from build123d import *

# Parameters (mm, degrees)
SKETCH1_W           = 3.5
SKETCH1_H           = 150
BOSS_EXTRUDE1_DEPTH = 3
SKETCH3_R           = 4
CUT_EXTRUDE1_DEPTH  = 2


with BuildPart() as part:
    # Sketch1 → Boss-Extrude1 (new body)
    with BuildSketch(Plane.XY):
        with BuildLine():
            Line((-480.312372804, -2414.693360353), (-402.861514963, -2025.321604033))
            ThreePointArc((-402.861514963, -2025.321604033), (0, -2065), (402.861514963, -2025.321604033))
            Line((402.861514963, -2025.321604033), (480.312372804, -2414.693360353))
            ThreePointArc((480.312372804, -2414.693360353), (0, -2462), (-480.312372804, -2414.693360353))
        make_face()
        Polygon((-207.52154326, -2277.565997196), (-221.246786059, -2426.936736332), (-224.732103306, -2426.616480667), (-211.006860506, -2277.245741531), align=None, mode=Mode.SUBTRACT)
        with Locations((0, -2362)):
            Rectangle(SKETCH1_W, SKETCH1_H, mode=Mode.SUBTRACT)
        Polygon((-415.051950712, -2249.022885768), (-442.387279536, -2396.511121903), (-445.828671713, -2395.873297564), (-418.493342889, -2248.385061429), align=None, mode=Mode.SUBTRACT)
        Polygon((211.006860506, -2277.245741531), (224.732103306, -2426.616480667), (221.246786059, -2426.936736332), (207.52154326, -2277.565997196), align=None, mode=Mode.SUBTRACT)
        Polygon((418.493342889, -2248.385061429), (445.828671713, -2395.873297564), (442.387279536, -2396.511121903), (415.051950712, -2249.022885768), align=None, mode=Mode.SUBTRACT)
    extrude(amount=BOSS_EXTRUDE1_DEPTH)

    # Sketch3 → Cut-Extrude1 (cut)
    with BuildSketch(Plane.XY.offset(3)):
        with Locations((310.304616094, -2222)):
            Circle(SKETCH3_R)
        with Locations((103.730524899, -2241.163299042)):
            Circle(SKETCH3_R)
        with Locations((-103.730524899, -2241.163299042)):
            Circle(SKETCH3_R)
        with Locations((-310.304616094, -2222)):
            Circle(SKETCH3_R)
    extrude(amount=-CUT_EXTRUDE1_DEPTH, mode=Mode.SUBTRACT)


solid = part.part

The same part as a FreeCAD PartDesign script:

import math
import FreeCAD as App
import Part
import Sketcher

V = App.Vector
Q = App.Units.Quantity


def add_polygon(sketch, points):
    """Adds a closed chain of lines whose ends are joined by coincident constraints."""
    first, n = sketch.GeometryCount, len(points)
    for a, b in zip(points, points[1:] + points[:1]):
        sketch.addGeometry(Part.LineSegment(App.Vector(*a, 0), App.Vector(*b, 0)), False)
    for i in range(n):
        sketch.addConstraint(Sketcher.Constraint("Coincident", first + i, 2, first + (i + 1) % n, 1))

doc = App.newDocument("Part")
body = doc.addObject("PartDesign::Body", "Body")

# Sketch on XY plane
sketch1 = body.newObject("Sketcher::SketchObject", "Sketch")
sketch1.AttachmentSupport = (doc.getObject("XY_Plane"), [""])
sketch1.MapMode = "FlatFace"
sketch1.addGeometry(Part.LineSegment(V(-402.9, -2025.3, 0), V(-480.3, -2414.7, 0)), False)  # 0
sketch1.addGeometry(Part.ArcOfCircle(Part.Circle(V(0, 0, 0), V(0, 0, 1), 2462), math.radians(-101), math.radians(-79)), False)  # 1
sketch1.addGeometry(Part.LineSegment(V(480.3, -2414.7, 0), V(402.9, -2025.3, 0)), False)  # 2
sketch1.addGeometry(Part.ArcOfCircle(Part.Circle(V(0, 0, 0), V(0, 0, 1), 2065), math.radians(-101), math.radians(-79)), False)  # 3
add_polygon(sketch1, [(211, -2277.2), (224.7, -2426.6), (221.2, -2426.9), (207.5, -2277.6)])  # lines 4-7
add_polygon(sketch1, [(-1.8, -2437), (-1.8, -2287), (1.8, -2287), (1.8, -2437)])  # lines 8-11
add_polygon(sketch1, [(-207.5, -2277.6), (-221.2, -2426.9), (-224.7, -2426.6), (-211, -2277.2)])  # lines 12-15
add_polygon(sketch1, [(418.5, -2248.4), (445.8, -2395.9), (442.4, -2396.5), (415.1, -2249)])  # lines 16-19
add_polygon(sketch1, [(-415.1, -2249), (-442.4, -2396.5), (-445.8, -2395.9), (-418.5, -2248.4)])  # lines 20-23
sketch1.addConstraint([
    Sketcher.Constraint("Coincident", 0, 2, 1, 1),
    Sketcher.Constraint("Coincident", 1, 2, 2, 1),
    Sketcher.Constraint("Coincident", 2, 2, 3, 2),
    Sketcher.Constraint("Coincident", 3, 1, 0, 1),
    Sketcher.Constraint("Vertical", 8),
    Sketcher.Constraint("Horizontal", 9),
    Sketcher.Constraint("Vertical", 10),
    Sketcher.Constraint("Horizontal", 11),
    Sketcher.Constraint("Coincident", 1, 3, -1, 1),
    Sketcher.Constraint("Coincident", 3, 3, -1, 1),
    Sketcher.Constraint("Symmetric", 5, 2, 12, 2, -2),
    Sketcher.Constraint("Symmetric", 4, 2, 13, 2, -2),
    Sketcher.Constraint("Symmetric", 7, 2, 14, 2, -2),
    Sketcher.Constraint("Symmetric", 6, 2, 15, 2, -2),
    Sketcher.Constraint("Symmetric", 17, 2, 20, 2, -2),
    Sketcher.Constraint("Symmetric", 16, 2, 21, 2, -2),
    Sketcher.Constraint("Symmetric", 19, 2, 22, 2, -2),
    Sketcher.Constraint("Symmetric", 18, 2, 23, 2, -2),
    Sketcher.Constraint("Perpendicular", 4, 5),
    Sketcher.Constraint("Perpendicular", 5, 6),
    Sketcher.Constraint("Perpendicular", 6, 7),
    Sketcher.Constraint("Perpendicular", 16, 17),
    Sketcher.Constraint("Perpendicular", 17, 18),
    Sketcher.Constraint("Perpendicular", 18, 19),
    Sketcher.Constraint("Equal", 14, 16),
    Sketcher.Constraint("Equal", 15, 17),
    Sketcher.Constraint("Radius", 1, 2462.0),
    Sketcher.Constraint("Radius", 3, 2065.0),
    Sketcher.Constraint("DistanceY", 8, 1, 8, 2, 150.0),
    Sketcher.Constraint("Distance", 4, 150.0),
    Sketcher.Constraint("DistanceX", 9, 1, 9, 2, 3.5),
    Sketcher.Constraint("DistanceY", 8, 2, -1, 1, 2287.0),
    Sketcher.Constraint("Angle", 16, Q("-79.5 deg")),
    Sketcher.Constraint("Distance", 5, 3.5),
    Sketcher.Constraint("Angle", 0, Q("-101.25 deg")),
    Sketcher.Constraint("Angle", 2, Q("101.25 deg")),
    Sketcher.Constraint("Angle", 4, Q("-84.75 deg")),
    Sketcher.Constraint("DistanceX", 8, 2, -1, 1, 1.75),
    Sketcher.Constraint("DistanceY", 16, 2, 6, 2, 118.3073),
    Sketcher.Constraint("DistanceX", 0, 2, 21, 2, 34.483701),
    Sketcher.Constraint("DistanceY", 0, 2, 22, 2, 166.308299),
    Sketcher.Constraint("DistanceX", 22, 2, 15, 2, 210.9718),
    Sketcher.Constraint("DistanceY", 0, 2, -1, 1, 2414.69336),
    Sketcher.Constraint("DistanceX", 4, 2, 2, 2, 178.129412),
])
pad1 = body.newObject("PartDesign::Pad", "Pad")
pad1.Profile = sketch1
pad1.Length = 3

# Sketch on XY plane
sketch2 = body.newObject("Sketcher::SketchObject", "Sketch001")
sketch2.AttachmentSupport = (doc.getObject("XY_Plane"), [""])
sketch2.MapMode = "FlatFace"
sketch2.AttachmentOffset = App.Placement(V(0, 0, 3), App.Rotation())
sketch2.addGeometry([
    Part.Circle(V(310.3, -2222, 0), V(0, 0, 1), 4),
    Part.Circle(V(103.7, -2241.2, 0), V(0, 0, 1), 4),
    Part.Circle(V(-103.7, -2241.2, 0), V(0, 0, 1), 4),
    Part.Circle(V(-310.3, -2222, 0), V(0, 0, 1), 4),
], False)
sketch2.addConstraint([
    Sketcher.Constraint("Equal", 0, 1),
    Sketcher.Constraint("Equal", 1, 2),
    Sketcher.Constraint("Equal", 2, 3),
    Sketcher.Constraint("Symmetric", 1, 3, 2, 3, -2),
    Sketcher.Constraint("Symmetric", 0, 3, 3, 3, -2),
    Sketcher.Constraint("Diameter", 0, 8.0),
    Sketcher.Constraint("DistanceY", 0, 3, -1, 1, 2222.0),
    Sketcher.Constraint("DistanceY", 1, 3, -1, 1, 2241.163299),
    Sketcher.Constraint("DistanceX", 1, 3, 0, 3, 206.574091),
    Sketcher.Constraint("DistanceX", 2, 3, 1, 3, 207.46105),
])
pocket1 = body.newObject("PartDesign::Pocket", "Pocket")
pocket1.Profile = sketch2
pocket1.Length = 2

doc.recompute()
